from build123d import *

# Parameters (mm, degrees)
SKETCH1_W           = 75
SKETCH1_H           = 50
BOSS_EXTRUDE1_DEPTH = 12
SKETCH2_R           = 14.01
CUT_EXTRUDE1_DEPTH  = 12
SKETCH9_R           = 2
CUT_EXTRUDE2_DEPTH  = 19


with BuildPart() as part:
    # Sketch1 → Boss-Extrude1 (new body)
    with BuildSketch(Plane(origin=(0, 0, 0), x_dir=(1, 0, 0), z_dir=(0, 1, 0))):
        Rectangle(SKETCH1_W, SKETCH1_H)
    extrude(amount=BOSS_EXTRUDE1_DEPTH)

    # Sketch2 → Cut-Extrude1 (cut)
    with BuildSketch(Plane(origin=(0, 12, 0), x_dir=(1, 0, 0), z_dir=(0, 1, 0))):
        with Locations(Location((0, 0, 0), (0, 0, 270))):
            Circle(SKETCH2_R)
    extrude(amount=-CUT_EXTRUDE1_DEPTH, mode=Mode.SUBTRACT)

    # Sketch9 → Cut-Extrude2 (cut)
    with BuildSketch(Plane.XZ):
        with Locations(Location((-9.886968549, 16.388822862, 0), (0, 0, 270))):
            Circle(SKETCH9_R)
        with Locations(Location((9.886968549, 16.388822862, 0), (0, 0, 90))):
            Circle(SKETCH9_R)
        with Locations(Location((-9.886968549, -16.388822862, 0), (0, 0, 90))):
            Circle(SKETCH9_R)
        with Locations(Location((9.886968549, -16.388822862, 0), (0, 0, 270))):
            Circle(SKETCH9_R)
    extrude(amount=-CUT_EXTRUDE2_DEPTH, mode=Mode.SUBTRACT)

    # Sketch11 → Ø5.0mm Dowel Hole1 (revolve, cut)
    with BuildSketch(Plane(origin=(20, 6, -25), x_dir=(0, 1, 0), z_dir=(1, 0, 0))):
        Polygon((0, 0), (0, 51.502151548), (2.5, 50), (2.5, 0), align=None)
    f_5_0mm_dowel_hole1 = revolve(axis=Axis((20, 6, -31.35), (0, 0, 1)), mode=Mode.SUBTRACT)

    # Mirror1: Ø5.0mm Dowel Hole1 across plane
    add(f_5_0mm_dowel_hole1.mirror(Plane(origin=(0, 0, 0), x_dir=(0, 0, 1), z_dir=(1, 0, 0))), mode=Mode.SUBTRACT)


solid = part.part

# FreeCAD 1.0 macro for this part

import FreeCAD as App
import Part
import Sketcher
Q = App.Units.Quantity


def add_polygon(sketch, points):
    """Adds a closed chain of lines whose ends are joined by coincident constraints."""
    first, n = sketch.GeometryCount, len(points)
    for a, b in zip(points, points[1:] + points[:1]):
        sketch.addGeometry(Part.LineSegment(App.Vector(*a, 0), App.Vector(*b, 0)), False)
    for i in range(n):
        sketch.addConstraint(Sketcher.Constraint("Coincident", first + i, 2, first + (i + 1) % n, 1))

doc = App.newDocument("Part")
body = doc.addObject("PartDesign::Body", "Body")

# Sketch on XZ plane
sketch1 = doc.addObject("Sketcher::SketchObject", "Sketch")
body.addObject(sketch1)
sketch1.AttachmentSupport = (doc.XZ_Plane, [""])
sketch1.MapMode = "FlatFace"
add_polygon(sketch1, [(-38, -25), (-38, 25), (38, 25), (38, -25)])  # lines 0-3
sketch1.addConstraint([
    Sketcher.Constraint("Vertical", 0),
    Sketcher.Constraint("Horizontal", 1),
    Sketcher.Constraint("Vertical", 2),
    Sketcher.Constraint("Horizontal", 3),
    Sketcher.Constraint("Symmetric", 0, 2, 2, 2, -1, 1),
    Sketcher.Constraint("DistanceX", 1, 1, 1, 2, Q("75 mm")),
    Sketcher.Constraint("DistanceY", 0, 1, 0, 2, Q("50 mm")),
])
pad1 = doc.addObject("PartDesign::Pad", "Pad")
body.addObject(pad1)
pad1.Profile = sketch1
pad1.Length = 12
pad1.Reversed = True

# Sketch on XZ plane
sketch2 = doc.addObject("Sketcher::SketchObject", "Sketch001")
body.addObject(sketch2)
sketch2.AttachmentSupport = (doc.XZ_Plane, [""])
sketch2.MapMode = "FlatFace"
sketch2.AttachmentOffset = App.Placement(App.Vector(0, 0, -12), App.Rotation())
sketch2.addGeometry(Part.Circle(App.Vector(0, 0, 0), App.Vector(0, 0, 1), 14), False)
sketch2.addConstraint([
    Sketcher.Constraint("Coincident", 0, 3, -1, 1),
    Sketcher.Constraint("Diameter", 0, Q("28.02 mm")),
])
pocket1 = doc.addObject("PartDesign::Pocket", "Pocket")
body.addObject(pocket1)
pocket1.Profile = sketch2
pocket1.Length = 12
pocket1.Reversed = True

# Sketch on XZ plane
sketch3 = doc.addObject("Sketcher::SketchObject", "Sketch002")
body.addObject(sketch3)
sketch3.AttachmentSupport = (doc.XZ_Plane, [""])
sketch3.MapMode = "FlatFace"
sketch3.addGeometry([
    Part.Circle(App.Vector(-9.9, 16.4, 0), App.Vector(0, 0, 1), 2),
    Part.Circle(App.Vector(9.9, 16.4, 0), App.Vector(0, 0, 1), 2),
    Part.Circle(App.Vector(-9.9, -16.4, 0), App.Vector(0, 0, 1), 2),
    Part.Circle(App.Vector(9.9, -16.4, 0), App.Vector(0, 0, 1), 2),
], False)
sketch3.addConstraint([
    Sketcher.Constraint("Equal", 0, 1),
    Sketcher.Constraint("Equal", 1, 2),
    Sketcher.Constraint("Equal", 2, 3),
    Sketcher.Constraint("Symmetric", 1, 3, 2, 3, -1, 1),
    Sketcher.Constraint("Symmetric", 0, 3, 3, 3, -1, 1),
    Sketcher.Constraint("Symmetric", 0, 3, 1, 3, -2),
    Sketcher.Constraint("Diameter", 0, Q("4 mm")),
    Sketcher.Constraint("DistanceX", 0, 3, -1, 1, Q("9.886969 mm")),
    Sketcher.Constraint("DistanceY", -1, 1, 0, 3, Q("16.388823 mm")),
])
pocket2 = doc.addObject("PartDesign::Pocket", "Pocket001")
body.addObject(pocket2)
pocket2.Profile = sketch3
pocket2.Length = 19

# Sketch on YZ plane
sketch4 = doc.addObject("Sketcher::SketchObject", "Sketch003")
body.addObject(sketch4)
sketch4.AttachmentSupport = (doc.YZ_Plane, [""])
sketch4.MapMode = "FlatFace"
sketch4.AttachmentOffset = App.Placement(App.Vector(0, 0, 20), App.Rotation())
add_polygon(sketch4, [(6, 26.5), (6, -25), (8.5, -25), (8.5, 25)])  # lines 0-3
sketch4.addGeometry(Part.LineSegment(App.Vector(6, -25, 0), App.Vector(6, 26.5, 0)), True)  # axis
sketch4.addConstraint([
    Sketcher.Constraint("Vertical", 0),
    Sketcher.Constraint("Horizontal", 1),
    Sketcher.Constraint("Vertical", 2),
    Sketcher.Constraint("Vertical", 4),
    Sketcher.Constraint("Coincident", 4, 1, 0, 2),
    Sketcher.Constraint("Equal", 0, 4),
    Sketcher.Constraint("DistanceY", 2, 1, 2, 2, Q("50 mm")),
    Sketcher.Constraint("Angle", 3, Q("149 deg")),
    Sketcher.Constraint("DistanceX", 1, 1, 1, 2, Q("2.5 mm")),
    Sketcher.Constraint("DistanceX", -1, 1, 0, 2, Q("6 mm")),
    Sketcher.Constraint("DistanceY", 0, 2, -1, 1, Q("25 mm")),
])
groove = doc.addObject("PartDesign::Groove", "Groove")
body.addObject(groove)
groove.Profile = sketch4
groove.ReferenceAxis = (sketch4, ["Axis0"])
groove.Angle = 360
doc.recompute()

mirrored = doc.addObject("PartDesign::Mirrored", "Mirrored")
body.addObject(mirrored)
mirrored.Originals = [groove]
mirrored.MirrorPlane = (doc.YZ_Plane, [""])
body.Tip = mirrored

doc.recompute()
